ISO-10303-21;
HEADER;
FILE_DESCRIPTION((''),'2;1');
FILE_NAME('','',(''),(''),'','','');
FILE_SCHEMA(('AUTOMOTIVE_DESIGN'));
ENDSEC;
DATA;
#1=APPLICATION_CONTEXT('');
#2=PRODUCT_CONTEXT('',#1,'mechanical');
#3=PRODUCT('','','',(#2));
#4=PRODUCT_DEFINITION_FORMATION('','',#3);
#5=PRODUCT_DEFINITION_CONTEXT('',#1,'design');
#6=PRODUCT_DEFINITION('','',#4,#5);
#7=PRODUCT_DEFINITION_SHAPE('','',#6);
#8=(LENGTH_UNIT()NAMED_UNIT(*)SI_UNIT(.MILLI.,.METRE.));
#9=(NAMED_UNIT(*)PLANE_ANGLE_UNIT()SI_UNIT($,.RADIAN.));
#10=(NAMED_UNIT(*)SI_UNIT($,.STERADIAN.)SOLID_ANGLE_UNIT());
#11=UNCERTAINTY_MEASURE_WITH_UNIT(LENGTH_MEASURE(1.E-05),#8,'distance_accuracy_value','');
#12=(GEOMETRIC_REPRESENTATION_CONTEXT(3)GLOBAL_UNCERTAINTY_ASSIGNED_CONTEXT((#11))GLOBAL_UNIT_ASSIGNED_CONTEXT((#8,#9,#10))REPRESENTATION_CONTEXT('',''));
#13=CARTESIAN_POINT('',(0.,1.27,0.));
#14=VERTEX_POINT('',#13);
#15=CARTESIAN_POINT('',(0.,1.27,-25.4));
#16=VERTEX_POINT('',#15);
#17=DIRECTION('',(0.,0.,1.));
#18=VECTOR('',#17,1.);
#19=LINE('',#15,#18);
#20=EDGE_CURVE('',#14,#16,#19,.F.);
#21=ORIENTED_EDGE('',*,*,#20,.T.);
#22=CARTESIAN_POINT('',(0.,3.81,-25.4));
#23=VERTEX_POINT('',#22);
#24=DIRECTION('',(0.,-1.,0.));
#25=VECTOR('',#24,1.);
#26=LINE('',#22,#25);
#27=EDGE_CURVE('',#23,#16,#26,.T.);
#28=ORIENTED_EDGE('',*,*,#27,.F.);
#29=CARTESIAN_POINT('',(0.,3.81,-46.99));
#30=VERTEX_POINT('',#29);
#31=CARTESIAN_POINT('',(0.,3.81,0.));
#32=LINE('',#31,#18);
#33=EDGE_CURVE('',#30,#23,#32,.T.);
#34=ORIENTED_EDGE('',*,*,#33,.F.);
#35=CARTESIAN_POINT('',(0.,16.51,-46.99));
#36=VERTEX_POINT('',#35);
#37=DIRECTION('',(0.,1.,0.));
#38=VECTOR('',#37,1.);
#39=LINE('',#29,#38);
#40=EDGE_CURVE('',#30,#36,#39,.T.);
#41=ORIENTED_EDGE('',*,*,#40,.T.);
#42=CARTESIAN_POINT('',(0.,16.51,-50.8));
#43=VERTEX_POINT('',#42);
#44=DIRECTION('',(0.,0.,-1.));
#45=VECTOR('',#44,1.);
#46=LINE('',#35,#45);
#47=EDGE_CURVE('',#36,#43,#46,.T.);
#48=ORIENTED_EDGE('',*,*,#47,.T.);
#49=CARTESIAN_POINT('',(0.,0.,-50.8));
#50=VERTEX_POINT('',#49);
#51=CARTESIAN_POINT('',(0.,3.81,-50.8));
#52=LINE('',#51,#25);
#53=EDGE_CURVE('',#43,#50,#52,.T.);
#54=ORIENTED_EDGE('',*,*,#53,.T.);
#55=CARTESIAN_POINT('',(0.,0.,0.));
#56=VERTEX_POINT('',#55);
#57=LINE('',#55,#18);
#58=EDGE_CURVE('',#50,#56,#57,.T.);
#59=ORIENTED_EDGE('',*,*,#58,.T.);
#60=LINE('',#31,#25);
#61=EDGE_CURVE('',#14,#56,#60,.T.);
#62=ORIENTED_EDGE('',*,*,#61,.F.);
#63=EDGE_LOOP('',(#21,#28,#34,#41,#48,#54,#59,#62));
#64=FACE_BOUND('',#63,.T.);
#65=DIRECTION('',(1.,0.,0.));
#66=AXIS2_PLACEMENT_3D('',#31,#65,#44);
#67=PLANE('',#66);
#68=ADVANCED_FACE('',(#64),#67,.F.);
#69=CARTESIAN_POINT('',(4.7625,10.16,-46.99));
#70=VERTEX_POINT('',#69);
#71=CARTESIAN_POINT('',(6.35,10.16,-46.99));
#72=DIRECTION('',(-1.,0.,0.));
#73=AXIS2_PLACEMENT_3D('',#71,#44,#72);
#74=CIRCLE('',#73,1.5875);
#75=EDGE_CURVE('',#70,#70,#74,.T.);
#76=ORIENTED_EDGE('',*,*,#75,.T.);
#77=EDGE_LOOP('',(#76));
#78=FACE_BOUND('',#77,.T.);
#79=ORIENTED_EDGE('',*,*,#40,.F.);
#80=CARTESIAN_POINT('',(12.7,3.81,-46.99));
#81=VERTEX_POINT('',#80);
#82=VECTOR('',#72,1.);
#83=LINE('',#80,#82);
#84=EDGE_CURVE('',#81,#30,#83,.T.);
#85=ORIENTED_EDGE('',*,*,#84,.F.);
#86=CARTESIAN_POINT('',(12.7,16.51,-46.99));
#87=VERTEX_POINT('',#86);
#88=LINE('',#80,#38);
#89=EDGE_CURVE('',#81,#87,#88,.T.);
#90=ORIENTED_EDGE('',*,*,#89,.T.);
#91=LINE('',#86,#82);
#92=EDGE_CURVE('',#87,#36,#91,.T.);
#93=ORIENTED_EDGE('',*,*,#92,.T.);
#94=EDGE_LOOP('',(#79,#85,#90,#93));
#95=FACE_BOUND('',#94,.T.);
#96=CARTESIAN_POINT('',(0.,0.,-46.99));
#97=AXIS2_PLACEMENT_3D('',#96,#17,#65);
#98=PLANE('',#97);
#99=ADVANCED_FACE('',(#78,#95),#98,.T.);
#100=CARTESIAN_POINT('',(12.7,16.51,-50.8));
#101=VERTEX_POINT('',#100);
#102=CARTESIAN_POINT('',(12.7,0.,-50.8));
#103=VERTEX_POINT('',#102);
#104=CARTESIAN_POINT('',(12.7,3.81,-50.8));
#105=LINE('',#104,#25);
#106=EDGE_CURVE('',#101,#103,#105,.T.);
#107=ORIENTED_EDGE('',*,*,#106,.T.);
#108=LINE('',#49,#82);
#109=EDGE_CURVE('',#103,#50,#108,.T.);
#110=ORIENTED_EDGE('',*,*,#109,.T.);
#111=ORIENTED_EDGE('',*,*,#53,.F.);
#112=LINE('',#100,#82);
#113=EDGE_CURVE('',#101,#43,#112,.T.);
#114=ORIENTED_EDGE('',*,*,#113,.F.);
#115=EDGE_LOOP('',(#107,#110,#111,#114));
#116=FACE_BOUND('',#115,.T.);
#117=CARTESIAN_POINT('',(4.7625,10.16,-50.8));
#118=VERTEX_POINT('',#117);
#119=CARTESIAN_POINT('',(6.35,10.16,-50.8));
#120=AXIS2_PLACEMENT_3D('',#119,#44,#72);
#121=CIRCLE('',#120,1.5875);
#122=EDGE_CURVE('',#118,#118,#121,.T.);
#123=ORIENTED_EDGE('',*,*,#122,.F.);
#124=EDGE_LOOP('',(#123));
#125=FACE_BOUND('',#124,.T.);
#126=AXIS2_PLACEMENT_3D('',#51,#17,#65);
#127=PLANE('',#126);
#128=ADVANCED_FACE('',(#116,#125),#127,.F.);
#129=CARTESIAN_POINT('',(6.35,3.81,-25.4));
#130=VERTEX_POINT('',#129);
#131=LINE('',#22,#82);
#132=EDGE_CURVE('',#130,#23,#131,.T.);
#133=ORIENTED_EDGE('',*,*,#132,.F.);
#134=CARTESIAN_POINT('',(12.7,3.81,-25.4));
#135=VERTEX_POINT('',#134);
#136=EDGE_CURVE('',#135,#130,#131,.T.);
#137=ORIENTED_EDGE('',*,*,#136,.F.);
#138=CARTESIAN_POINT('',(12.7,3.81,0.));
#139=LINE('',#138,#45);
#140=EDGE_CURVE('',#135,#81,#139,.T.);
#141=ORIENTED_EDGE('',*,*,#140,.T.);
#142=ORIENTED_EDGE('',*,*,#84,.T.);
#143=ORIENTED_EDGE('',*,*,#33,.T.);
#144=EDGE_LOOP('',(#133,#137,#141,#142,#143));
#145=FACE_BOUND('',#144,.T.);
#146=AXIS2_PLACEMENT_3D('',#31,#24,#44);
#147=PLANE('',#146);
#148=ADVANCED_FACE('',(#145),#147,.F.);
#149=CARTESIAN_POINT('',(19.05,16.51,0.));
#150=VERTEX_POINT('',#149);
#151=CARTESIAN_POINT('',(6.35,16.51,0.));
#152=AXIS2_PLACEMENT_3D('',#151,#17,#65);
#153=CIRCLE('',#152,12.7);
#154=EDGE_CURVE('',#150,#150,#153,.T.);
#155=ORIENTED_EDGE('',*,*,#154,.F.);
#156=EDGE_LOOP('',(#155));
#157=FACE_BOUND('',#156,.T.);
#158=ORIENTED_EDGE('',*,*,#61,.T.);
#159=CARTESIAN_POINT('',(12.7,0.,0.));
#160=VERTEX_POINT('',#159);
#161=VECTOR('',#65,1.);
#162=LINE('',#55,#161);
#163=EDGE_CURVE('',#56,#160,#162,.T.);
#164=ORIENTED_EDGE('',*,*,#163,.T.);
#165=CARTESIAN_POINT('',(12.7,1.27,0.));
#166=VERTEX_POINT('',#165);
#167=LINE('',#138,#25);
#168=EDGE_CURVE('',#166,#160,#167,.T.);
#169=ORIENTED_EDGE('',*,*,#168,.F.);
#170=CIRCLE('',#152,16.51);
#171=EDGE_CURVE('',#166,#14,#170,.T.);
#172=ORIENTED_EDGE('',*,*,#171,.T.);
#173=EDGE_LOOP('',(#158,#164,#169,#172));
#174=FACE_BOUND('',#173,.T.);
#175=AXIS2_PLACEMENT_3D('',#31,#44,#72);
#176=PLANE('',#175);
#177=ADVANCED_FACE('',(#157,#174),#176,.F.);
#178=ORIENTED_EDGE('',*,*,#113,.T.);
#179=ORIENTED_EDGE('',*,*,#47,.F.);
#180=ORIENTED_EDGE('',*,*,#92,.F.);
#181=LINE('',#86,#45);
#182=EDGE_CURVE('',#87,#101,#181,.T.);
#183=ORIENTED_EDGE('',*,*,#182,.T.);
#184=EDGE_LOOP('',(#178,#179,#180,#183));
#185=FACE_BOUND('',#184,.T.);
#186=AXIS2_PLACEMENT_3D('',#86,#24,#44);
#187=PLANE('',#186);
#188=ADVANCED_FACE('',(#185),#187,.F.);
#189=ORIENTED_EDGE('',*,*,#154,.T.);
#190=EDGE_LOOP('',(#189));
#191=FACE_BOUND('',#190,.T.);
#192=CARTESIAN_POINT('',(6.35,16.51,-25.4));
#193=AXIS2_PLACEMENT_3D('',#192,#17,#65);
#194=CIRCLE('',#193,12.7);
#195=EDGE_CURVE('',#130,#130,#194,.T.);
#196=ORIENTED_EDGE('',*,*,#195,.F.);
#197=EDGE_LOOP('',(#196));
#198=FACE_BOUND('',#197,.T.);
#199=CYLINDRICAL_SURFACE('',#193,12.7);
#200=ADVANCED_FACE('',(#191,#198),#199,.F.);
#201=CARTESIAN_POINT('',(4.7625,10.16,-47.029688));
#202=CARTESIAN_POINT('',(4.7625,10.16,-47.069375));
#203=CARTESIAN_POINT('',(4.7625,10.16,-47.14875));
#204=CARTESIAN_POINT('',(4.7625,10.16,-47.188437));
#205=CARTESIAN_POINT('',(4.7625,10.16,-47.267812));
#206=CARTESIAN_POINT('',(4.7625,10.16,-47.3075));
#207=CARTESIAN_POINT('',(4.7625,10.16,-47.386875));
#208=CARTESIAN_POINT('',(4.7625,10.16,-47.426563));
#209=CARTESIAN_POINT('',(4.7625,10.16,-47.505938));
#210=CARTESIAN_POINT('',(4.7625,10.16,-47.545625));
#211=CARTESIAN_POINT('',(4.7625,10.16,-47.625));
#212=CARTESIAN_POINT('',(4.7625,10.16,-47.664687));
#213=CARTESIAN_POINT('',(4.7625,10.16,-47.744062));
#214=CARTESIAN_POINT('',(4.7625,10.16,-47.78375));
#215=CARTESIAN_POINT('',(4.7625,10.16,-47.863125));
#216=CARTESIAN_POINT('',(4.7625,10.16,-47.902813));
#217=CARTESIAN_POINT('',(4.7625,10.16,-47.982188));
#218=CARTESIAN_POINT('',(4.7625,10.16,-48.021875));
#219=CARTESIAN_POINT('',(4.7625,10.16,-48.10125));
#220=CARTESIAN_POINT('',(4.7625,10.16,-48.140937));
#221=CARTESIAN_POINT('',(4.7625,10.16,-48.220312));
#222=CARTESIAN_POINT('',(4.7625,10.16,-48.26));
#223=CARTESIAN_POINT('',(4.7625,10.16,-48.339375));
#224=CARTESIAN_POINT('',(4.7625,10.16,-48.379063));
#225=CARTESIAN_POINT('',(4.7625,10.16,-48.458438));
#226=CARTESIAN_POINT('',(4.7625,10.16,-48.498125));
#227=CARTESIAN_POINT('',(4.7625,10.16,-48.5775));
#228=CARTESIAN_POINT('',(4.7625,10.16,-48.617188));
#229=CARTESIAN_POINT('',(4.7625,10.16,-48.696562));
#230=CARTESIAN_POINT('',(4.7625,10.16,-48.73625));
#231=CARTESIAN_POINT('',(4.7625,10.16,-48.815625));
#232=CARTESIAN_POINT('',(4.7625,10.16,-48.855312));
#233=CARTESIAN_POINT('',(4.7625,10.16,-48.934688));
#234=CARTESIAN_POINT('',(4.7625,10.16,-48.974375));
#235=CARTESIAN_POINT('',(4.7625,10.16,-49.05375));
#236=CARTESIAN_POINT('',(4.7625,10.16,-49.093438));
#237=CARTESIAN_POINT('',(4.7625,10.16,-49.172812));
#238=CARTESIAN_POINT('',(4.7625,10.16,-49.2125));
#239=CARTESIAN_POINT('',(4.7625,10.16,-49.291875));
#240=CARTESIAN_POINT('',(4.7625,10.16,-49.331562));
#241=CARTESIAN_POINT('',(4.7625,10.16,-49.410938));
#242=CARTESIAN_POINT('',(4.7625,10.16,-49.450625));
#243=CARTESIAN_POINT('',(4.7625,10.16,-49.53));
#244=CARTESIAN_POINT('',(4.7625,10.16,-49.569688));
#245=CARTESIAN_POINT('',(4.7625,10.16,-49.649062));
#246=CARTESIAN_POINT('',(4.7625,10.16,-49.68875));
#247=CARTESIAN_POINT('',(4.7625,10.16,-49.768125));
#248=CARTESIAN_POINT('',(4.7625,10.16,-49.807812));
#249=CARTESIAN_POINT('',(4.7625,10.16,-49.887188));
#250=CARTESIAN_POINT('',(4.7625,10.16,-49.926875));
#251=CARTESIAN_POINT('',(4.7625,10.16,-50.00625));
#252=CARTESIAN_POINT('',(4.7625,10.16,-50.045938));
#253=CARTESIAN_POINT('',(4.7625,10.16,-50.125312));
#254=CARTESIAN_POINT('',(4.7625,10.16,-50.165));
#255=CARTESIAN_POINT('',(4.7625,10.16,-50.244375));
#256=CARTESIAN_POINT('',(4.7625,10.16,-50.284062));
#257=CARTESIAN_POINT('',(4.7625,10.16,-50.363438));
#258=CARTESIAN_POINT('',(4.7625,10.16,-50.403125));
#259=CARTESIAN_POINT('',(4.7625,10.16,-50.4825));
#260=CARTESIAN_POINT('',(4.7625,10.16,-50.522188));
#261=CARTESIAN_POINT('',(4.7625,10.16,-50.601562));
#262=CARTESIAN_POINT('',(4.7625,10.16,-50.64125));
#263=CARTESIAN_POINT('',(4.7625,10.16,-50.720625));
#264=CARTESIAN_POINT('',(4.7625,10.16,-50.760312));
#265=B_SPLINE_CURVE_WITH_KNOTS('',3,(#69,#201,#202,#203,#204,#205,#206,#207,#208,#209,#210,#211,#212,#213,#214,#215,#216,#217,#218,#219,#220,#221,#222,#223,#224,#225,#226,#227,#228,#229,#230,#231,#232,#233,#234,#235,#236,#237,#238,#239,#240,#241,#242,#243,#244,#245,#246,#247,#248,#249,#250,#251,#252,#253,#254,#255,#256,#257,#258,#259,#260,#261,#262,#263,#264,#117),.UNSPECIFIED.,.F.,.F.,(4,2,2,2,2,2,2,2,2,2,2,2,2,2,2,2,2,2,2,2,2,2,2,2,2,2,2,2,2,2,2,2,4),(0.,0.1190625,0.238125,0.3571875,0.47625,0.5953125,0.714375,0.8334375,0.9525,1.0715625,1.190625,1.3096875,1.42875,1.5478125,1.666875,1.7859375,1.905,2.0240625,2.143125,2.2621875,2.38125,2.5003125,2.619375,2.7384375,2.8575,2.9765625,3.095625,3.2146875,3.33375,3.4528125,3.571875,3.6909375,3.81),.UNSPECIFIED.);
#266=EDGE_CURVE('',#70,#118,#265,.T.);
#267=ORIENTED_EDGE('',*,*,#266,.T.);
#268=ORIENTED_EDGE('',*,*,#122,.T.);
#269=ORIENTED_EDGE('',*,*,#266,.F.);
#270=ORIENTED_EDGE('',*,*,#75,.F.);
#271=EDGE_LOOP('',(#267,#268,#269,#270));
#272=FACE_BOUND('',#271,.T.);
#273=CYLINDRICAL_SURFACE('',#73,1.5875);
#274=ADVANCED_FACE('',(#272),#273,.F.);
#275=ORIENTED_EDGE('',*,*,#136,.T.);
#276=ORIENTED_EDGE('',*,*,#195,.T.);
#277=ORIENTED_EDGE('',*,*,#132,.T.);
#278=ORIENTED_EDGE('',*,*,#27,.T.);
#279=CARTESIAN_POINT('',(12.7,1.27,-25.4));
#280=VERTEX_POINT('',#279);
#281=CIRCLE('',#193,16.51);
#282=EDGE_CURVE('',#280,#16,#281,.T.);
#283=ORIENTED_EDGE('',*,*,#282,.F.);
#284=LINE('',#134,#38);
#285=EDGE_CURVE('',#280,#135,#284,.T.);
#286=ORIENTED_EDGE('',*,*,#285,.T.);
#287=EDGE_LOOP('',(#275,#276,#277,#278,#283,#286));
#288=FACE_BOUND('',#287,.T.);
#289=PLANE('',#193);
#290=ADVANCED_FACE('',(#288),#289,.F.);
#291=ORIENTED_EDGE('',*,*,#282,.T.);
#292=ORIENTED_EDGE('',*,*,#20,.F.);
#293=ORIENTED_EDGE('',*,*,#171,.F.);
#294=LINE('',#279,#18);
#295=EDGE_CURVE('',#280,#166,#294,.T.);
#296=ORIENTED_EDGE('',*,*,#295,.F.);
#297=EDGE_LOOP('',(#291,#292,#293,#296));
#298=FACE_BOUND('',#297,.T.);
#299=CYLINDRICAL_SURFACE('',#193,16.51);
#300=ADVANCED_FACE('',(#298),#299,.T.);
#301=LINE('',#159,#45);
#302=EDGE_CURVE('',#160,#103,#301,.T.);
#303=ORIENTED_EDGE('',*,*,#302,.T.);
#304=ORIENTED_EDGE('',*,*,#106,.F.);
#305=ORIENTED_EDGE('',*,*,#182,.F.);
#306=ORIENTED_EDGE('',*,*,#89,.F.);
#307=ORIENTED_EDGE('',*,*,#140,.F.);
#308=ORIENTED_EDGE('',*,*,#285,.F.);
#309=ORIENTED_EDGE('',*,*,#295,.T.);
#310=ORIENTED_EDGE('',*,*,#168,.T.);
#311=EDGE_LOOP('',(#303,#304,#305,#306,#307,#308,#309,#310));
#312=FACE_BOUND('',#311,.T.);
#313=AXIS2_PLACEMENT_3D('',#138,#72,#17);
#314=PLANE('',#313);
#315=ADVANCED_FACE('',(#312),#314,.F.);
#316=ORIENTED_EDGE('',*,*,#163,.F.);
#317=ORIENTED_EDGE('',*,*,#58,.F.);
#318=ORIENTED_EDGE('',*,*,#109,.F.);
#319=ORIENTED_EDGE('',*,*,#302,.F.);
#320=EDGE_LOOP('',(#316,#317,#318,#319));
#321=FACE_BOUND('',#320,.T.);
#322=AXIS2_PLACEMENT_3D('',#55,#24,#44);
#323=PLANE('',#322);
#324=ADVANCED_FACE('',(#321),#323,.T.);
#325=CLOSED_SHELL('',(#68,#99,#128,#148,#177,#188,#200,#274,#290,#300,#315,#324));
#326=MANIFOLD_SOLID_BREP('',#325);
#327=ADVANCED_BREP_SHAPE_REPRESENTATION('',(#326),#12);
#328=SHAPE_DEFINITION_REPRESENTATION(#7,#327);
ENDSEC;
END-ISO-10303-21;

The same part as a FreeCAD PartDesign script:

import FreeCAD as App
import Part
import Sketcher
Q = App.Units.Quantity

doc = App.newDocument("Part")
body = doc.addObject("PartDesign::Body", "Body")

sketch1 = body.newObject("Sketcher::SketchObject", "Sketch")
sketch1.AttachmentSupport = (doc.getObject("XZ_Plane"), [""])
sketch1.MapMode = "FlatFace"
sketch1.addGeometry(Part.LineSegment(App.Vector(0, -51, 0), App.Vector(0, 0, 0)), False)
sketch1.addGeometry(Part.LineSegment(App.Vector(0, 0, 0), App.Vector(13, 0, 0)), False)
sketch1.addGeometry(Part.LineSegment(App.Vector(13, 0, 0), App.Vector(13, -51, 0)), False)
sketch1.addGeometry(Part.LineSegment(App.Vector(13, -51, 0), App.Vector(0, -51, 0)), False)
sketch1.addConstraint(Sketcher.Constraint("Coincident", 0, 2, 1, 1))
sketch1.addConstraint(Sketcher.Constraint("Coincident", 1, 2, 2, 1))
sketch1.addConstraint(Sketcher.Constraint("Coincident", 2, 2, 3, 1))
sketch1.addConstraint(Sketcher.Constraint("Coincident", 3, 2, 0, 1))
sketch1.addConstraint(Sketcher.Constraint("Vertical", 0))
sketch1.addConstraint(Sketcher.Constraint("Horizontal", 1))
sketch1.addConstraint(Sketcher.Constraint("Vertical", 2))
sketch1.addConstraint(Sketcher.Constraint("Horizontal", 3))
sketch1.addConstraint(Sketcher.Constraint("Coincident", 0, 2, -1, 1))
sketch1.addConstraint(Sketcher.Constraint("DistanceY", 0, 1, 0, 2, Q("2 in")))
sketch1.addConstraint(Sketcher.Constraint("DistanceX", 1, 1, 1, 2, Q("0.5 in")))
pad1 = body.newObject("PartDesign::Pad", "Pad")
pad1.Profile = sketch1
pad1.Length = Q("0.15 in")
pad1.Reversed = True

sketch2 = body.newObject("Sketcher::SketchObject", "Sketch001")
sketch2.AttachmentSupport = (doc.getObject("XY_Plane"), [""])
sketch2.MapMode = "FlatFace"
sketch2.addGeometry(Part.Circle(App.Vector(6, 17, 0), App.Vector(0, 0, 1), 17), False)
sketch2.addGeometry(Part.Circle(App.Vector(6, 17, 0), App.Vector(0, 0, 1), 13), False)
sketch2.addConstraint(Sketcher.Constraint("Coincident", 1, 3, 0, 3))
sketch2.addConstraint(Sketcher.Constraint("Diameter", 1, Q("1 in")))
sketch2.addConstraint(Sketcher.Constraint("Diameter", 0, Q("1.3 in")))
sketch2.addConstraint(Sketcher.Constraint("DistanceX", -1, 1, 0, 3, Q("0.25 in")))
sketch2.addConstraint(Sketcher.Constraint("DistanceY", -1, 1, 0, 3, Q("0.65 in")))
pad2 = body.newObject("PartDesign::Pad", "Pad001")
pad2.Profile = sketch2
pad2.Length = Q("1 in")
pad2.Reversed = True

sketch3 = body.newObject("Sketcher::SketchObject", "Sketch002")
sketch3.AttachmentSupport = (doc.getObject("XY_Plane"), [""])
sketch3.MapMode = "FlatFace"
sketch3.AttachmentOffset = App.Placement(App.Vector(0, 0, -2 * 25.4), App.Rotation())
sketch3.addGeometry(Part.LineSegment(App.Vector(12.7, 16.5, 0), App.Vector(12.7, 3.8, 0)), False)
sketch3.addGeometry(Part.LineSegment(App.Vector(12.7, 3.8, 0), App.Vector(0, 3.8, 0)), False)
sketch3.addGeometry(Part.LineSegment(App.Vector(0, 3.8, 0), App.Vector(0, 16.5, 0)), False)
sketch3.addGeometry(Part.LineSegment(App.Vector(0, 16.5, 0), App.Vector(12.7, 16.5, 0)), False)
sketch3.addGeometry(Part.Circle(App.Vector(6.3, 10.2, 0), App.Vector(0, 0, 1), 1.6), False)
sketch3.addConstraint(Sketcher.Constraint("Coincident", 0, 2, 1, 1))
sketch3.addConstraint(Sketcher.Constraint("Coincident", 1, 2, 2, 1))
sketch3.addConstraint(Sketcher.Constraint("Coincident", 2, 2, 3, 1))
sketch3.addConstraint(Sketcher.Constraint("Coincident", 3, 2, 0, 1))
sketch3.addConstraint(Sketcher.Constraint("Vertical", 0))
sketch3.addConstraint(Sketcher.Constraint("Horizontal", 1))
sketch3.addConstraint(Sketcher.Constraint("Vertical", 2))
sketch3.addConstraint(Sketcher.Constraint("Horizontal", 3))
sketch3.addConstraint(Sketcher.Constraint("PointOnObject", 1, 2, -2))
sketch3.addConstraint(Sketcher.Constraint("Equal", 3, 0))
sketch3.addConstraint(Sketcher.Constraint("Diameter", 4, Q("0.125 in")))
sketch3.addConstraint(Sketcher.Constraint("DistanceX", 1, 2, 1, 1, Q("0.5 in")))
sketch3.addConstraint(Sketcher.Constraint("DistanceY", -1, 1, 4, 3, Q("0.4 in")))
sketch3.addConstraint(Sketcher.Constraint("DistanceX", -1, 1, 4, 3, Q("0.25 in")))
sketch3.addConstraint(Sketcher.Constraint("DistanceY", -1, 1, 0, 2, Q("0.15 in")))
pad3 = body.newObject("PartDesign::Pad", "Pad002")
pad3.Profile = sketch3
pad3.Length = Q("0.15 in")

doc.recompute()
